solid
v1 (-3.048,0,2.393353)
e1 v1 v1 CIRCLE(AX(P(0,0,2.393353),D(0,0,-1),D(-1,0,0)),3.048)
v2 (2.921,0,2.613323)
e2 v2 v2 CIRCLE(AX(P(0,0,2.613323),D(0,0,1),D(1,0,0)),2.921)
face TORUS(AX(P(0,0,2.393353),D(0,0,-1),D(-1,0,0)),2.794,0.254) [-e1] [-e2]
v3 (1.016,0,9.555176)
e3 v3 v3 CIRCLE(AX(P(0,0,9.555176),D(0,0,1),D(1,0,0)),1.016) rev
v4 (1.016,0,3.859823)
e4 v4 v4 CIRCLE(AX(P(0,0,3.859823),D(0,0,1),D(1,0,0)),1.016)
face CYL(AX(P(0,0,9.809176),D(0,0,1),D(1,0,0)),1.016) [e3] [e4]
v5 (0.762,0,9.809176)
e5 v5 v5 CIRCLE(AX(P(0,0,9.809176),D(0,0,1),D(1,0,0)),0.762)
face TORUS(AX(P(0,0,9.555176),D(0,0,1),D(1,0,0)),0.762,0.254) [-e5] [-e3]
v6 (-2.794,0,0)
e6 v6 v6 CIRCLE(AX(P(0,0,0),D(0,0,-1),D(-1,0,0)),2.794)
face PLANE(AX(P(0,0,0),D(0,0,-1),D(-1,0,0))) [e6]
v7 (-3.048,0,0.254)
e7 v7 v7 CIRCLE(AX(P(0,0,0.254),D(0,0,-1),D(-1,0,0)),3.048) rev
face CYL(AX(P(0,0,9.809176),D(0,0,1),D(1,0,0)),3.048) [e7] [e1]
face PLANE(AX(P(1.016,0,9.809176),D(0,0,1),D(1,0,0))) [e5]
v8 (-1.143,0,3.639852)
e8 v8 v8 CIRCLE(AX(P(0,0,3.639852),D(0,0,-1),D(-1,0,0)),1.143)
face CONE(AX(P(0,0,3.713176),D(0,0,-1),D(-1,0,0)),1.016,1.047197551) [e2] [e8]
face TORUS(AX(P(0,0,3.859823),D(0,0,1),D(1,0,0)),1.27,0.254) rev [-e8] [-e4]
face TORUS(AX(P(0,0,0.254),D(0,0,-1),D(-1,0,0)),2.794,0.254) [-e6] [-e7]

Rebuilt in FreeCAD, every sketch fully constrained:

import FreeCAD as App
import Part
import Sketcher
from FreeCAD import Vector
Q = App.Units.Quantity


def edges_at(feature, points):
    """Names of the edges that pass closest to the given points."""
    edges = feature.Shape.Edges
    near = lambda p: min(range(len(edges)), key=lambda i: edges[i].distToShape(Part.Vertex(*p))[0])
    return sorted({f"Edge{near(p) + 1}" for p in points})


def add_polygon(sketch, points):
    """Adds a closed chain of lines whose ends are joined by coincident constraints."""
    first, n = sketch.GeometryCount, len(points)
    for a, b in zip(points, points[1:] + points[:1]):
        sketch.addGeometry(Part.LineSegment(App.Vector(*a, 0), App.Vector(*b, 0)), False)
    for i in range(n):
        sketch.addConstraint(Sketcher.Constraint("Coincident", first + i, 2, first + (i + 1) % n, 1))

doc = App.newDocument("Part")
body = doc.addObject("PartDesign::Body", "Body")

# Sketch on XZ plane
sketch1 = body.newObject("Sketcher::SketchObject", "Sketch")
sketch1.AttachmentSupport = (doc.getObject("XZ_Plane"), [""])
sketch1.MapMode = "FlatFace"
add_polygon(sketch1, [(3, 0), (0, 0), (0, 9.8), (1, 9.8), (1, 3.7), (3, 2.5)])  # lines 0-5
sketch1.addConstraint([
    Sketcher.Constraint("Horizontal", 0),
    Sketcher.Constraint("Vertical", 1),
    Sketcher.Constraint("Horizontal", 2),
    Sketcher.Constraint("Vertical", 3),
    Sketcher.Constraint("Vertical", 5),
    Sketcher.Constraint("Coincident", 0, 2, -1, 1),
    Sketcher.Constraint("DistanceY", 5, 2, 5, 1, Q("0.1 in")),
    Sketcher.Constraint("Angle", 4, Q("-30 deg")),
    Sketcher.Constraint("DistanceX", 0, 2, 0, 1, Q("0.12 in")),
    Sketcher.Constraint("DistanceX", 2, 1, 2, 2, Q("0.04 in")),
    Sketcher.Constraint("DistanceY", 3, 2, 3, 1, Q("0.24 in")),
])
revolution = body.newObject("PartDesign::Revolution", "Revolution")
revolution.Profile = sketch1
revolution.ReferenceAxis = (sketch1, ["V_Axis"])
revolution.Angle = 360
doc.recompute()

fillet = body.newObject("PartDesign::Fillet", "Fillet")
fillet.Base = (revolution, edges_at(revolution, [
    (-1.016, 0, 9.809),
    (-1.016, 0, 3.713),
    (-3.048, 0, 2.54),
    (-3.048, 0, 0),
]))
fillet.Radius = Q("0.01 in")

doc.recompute()
